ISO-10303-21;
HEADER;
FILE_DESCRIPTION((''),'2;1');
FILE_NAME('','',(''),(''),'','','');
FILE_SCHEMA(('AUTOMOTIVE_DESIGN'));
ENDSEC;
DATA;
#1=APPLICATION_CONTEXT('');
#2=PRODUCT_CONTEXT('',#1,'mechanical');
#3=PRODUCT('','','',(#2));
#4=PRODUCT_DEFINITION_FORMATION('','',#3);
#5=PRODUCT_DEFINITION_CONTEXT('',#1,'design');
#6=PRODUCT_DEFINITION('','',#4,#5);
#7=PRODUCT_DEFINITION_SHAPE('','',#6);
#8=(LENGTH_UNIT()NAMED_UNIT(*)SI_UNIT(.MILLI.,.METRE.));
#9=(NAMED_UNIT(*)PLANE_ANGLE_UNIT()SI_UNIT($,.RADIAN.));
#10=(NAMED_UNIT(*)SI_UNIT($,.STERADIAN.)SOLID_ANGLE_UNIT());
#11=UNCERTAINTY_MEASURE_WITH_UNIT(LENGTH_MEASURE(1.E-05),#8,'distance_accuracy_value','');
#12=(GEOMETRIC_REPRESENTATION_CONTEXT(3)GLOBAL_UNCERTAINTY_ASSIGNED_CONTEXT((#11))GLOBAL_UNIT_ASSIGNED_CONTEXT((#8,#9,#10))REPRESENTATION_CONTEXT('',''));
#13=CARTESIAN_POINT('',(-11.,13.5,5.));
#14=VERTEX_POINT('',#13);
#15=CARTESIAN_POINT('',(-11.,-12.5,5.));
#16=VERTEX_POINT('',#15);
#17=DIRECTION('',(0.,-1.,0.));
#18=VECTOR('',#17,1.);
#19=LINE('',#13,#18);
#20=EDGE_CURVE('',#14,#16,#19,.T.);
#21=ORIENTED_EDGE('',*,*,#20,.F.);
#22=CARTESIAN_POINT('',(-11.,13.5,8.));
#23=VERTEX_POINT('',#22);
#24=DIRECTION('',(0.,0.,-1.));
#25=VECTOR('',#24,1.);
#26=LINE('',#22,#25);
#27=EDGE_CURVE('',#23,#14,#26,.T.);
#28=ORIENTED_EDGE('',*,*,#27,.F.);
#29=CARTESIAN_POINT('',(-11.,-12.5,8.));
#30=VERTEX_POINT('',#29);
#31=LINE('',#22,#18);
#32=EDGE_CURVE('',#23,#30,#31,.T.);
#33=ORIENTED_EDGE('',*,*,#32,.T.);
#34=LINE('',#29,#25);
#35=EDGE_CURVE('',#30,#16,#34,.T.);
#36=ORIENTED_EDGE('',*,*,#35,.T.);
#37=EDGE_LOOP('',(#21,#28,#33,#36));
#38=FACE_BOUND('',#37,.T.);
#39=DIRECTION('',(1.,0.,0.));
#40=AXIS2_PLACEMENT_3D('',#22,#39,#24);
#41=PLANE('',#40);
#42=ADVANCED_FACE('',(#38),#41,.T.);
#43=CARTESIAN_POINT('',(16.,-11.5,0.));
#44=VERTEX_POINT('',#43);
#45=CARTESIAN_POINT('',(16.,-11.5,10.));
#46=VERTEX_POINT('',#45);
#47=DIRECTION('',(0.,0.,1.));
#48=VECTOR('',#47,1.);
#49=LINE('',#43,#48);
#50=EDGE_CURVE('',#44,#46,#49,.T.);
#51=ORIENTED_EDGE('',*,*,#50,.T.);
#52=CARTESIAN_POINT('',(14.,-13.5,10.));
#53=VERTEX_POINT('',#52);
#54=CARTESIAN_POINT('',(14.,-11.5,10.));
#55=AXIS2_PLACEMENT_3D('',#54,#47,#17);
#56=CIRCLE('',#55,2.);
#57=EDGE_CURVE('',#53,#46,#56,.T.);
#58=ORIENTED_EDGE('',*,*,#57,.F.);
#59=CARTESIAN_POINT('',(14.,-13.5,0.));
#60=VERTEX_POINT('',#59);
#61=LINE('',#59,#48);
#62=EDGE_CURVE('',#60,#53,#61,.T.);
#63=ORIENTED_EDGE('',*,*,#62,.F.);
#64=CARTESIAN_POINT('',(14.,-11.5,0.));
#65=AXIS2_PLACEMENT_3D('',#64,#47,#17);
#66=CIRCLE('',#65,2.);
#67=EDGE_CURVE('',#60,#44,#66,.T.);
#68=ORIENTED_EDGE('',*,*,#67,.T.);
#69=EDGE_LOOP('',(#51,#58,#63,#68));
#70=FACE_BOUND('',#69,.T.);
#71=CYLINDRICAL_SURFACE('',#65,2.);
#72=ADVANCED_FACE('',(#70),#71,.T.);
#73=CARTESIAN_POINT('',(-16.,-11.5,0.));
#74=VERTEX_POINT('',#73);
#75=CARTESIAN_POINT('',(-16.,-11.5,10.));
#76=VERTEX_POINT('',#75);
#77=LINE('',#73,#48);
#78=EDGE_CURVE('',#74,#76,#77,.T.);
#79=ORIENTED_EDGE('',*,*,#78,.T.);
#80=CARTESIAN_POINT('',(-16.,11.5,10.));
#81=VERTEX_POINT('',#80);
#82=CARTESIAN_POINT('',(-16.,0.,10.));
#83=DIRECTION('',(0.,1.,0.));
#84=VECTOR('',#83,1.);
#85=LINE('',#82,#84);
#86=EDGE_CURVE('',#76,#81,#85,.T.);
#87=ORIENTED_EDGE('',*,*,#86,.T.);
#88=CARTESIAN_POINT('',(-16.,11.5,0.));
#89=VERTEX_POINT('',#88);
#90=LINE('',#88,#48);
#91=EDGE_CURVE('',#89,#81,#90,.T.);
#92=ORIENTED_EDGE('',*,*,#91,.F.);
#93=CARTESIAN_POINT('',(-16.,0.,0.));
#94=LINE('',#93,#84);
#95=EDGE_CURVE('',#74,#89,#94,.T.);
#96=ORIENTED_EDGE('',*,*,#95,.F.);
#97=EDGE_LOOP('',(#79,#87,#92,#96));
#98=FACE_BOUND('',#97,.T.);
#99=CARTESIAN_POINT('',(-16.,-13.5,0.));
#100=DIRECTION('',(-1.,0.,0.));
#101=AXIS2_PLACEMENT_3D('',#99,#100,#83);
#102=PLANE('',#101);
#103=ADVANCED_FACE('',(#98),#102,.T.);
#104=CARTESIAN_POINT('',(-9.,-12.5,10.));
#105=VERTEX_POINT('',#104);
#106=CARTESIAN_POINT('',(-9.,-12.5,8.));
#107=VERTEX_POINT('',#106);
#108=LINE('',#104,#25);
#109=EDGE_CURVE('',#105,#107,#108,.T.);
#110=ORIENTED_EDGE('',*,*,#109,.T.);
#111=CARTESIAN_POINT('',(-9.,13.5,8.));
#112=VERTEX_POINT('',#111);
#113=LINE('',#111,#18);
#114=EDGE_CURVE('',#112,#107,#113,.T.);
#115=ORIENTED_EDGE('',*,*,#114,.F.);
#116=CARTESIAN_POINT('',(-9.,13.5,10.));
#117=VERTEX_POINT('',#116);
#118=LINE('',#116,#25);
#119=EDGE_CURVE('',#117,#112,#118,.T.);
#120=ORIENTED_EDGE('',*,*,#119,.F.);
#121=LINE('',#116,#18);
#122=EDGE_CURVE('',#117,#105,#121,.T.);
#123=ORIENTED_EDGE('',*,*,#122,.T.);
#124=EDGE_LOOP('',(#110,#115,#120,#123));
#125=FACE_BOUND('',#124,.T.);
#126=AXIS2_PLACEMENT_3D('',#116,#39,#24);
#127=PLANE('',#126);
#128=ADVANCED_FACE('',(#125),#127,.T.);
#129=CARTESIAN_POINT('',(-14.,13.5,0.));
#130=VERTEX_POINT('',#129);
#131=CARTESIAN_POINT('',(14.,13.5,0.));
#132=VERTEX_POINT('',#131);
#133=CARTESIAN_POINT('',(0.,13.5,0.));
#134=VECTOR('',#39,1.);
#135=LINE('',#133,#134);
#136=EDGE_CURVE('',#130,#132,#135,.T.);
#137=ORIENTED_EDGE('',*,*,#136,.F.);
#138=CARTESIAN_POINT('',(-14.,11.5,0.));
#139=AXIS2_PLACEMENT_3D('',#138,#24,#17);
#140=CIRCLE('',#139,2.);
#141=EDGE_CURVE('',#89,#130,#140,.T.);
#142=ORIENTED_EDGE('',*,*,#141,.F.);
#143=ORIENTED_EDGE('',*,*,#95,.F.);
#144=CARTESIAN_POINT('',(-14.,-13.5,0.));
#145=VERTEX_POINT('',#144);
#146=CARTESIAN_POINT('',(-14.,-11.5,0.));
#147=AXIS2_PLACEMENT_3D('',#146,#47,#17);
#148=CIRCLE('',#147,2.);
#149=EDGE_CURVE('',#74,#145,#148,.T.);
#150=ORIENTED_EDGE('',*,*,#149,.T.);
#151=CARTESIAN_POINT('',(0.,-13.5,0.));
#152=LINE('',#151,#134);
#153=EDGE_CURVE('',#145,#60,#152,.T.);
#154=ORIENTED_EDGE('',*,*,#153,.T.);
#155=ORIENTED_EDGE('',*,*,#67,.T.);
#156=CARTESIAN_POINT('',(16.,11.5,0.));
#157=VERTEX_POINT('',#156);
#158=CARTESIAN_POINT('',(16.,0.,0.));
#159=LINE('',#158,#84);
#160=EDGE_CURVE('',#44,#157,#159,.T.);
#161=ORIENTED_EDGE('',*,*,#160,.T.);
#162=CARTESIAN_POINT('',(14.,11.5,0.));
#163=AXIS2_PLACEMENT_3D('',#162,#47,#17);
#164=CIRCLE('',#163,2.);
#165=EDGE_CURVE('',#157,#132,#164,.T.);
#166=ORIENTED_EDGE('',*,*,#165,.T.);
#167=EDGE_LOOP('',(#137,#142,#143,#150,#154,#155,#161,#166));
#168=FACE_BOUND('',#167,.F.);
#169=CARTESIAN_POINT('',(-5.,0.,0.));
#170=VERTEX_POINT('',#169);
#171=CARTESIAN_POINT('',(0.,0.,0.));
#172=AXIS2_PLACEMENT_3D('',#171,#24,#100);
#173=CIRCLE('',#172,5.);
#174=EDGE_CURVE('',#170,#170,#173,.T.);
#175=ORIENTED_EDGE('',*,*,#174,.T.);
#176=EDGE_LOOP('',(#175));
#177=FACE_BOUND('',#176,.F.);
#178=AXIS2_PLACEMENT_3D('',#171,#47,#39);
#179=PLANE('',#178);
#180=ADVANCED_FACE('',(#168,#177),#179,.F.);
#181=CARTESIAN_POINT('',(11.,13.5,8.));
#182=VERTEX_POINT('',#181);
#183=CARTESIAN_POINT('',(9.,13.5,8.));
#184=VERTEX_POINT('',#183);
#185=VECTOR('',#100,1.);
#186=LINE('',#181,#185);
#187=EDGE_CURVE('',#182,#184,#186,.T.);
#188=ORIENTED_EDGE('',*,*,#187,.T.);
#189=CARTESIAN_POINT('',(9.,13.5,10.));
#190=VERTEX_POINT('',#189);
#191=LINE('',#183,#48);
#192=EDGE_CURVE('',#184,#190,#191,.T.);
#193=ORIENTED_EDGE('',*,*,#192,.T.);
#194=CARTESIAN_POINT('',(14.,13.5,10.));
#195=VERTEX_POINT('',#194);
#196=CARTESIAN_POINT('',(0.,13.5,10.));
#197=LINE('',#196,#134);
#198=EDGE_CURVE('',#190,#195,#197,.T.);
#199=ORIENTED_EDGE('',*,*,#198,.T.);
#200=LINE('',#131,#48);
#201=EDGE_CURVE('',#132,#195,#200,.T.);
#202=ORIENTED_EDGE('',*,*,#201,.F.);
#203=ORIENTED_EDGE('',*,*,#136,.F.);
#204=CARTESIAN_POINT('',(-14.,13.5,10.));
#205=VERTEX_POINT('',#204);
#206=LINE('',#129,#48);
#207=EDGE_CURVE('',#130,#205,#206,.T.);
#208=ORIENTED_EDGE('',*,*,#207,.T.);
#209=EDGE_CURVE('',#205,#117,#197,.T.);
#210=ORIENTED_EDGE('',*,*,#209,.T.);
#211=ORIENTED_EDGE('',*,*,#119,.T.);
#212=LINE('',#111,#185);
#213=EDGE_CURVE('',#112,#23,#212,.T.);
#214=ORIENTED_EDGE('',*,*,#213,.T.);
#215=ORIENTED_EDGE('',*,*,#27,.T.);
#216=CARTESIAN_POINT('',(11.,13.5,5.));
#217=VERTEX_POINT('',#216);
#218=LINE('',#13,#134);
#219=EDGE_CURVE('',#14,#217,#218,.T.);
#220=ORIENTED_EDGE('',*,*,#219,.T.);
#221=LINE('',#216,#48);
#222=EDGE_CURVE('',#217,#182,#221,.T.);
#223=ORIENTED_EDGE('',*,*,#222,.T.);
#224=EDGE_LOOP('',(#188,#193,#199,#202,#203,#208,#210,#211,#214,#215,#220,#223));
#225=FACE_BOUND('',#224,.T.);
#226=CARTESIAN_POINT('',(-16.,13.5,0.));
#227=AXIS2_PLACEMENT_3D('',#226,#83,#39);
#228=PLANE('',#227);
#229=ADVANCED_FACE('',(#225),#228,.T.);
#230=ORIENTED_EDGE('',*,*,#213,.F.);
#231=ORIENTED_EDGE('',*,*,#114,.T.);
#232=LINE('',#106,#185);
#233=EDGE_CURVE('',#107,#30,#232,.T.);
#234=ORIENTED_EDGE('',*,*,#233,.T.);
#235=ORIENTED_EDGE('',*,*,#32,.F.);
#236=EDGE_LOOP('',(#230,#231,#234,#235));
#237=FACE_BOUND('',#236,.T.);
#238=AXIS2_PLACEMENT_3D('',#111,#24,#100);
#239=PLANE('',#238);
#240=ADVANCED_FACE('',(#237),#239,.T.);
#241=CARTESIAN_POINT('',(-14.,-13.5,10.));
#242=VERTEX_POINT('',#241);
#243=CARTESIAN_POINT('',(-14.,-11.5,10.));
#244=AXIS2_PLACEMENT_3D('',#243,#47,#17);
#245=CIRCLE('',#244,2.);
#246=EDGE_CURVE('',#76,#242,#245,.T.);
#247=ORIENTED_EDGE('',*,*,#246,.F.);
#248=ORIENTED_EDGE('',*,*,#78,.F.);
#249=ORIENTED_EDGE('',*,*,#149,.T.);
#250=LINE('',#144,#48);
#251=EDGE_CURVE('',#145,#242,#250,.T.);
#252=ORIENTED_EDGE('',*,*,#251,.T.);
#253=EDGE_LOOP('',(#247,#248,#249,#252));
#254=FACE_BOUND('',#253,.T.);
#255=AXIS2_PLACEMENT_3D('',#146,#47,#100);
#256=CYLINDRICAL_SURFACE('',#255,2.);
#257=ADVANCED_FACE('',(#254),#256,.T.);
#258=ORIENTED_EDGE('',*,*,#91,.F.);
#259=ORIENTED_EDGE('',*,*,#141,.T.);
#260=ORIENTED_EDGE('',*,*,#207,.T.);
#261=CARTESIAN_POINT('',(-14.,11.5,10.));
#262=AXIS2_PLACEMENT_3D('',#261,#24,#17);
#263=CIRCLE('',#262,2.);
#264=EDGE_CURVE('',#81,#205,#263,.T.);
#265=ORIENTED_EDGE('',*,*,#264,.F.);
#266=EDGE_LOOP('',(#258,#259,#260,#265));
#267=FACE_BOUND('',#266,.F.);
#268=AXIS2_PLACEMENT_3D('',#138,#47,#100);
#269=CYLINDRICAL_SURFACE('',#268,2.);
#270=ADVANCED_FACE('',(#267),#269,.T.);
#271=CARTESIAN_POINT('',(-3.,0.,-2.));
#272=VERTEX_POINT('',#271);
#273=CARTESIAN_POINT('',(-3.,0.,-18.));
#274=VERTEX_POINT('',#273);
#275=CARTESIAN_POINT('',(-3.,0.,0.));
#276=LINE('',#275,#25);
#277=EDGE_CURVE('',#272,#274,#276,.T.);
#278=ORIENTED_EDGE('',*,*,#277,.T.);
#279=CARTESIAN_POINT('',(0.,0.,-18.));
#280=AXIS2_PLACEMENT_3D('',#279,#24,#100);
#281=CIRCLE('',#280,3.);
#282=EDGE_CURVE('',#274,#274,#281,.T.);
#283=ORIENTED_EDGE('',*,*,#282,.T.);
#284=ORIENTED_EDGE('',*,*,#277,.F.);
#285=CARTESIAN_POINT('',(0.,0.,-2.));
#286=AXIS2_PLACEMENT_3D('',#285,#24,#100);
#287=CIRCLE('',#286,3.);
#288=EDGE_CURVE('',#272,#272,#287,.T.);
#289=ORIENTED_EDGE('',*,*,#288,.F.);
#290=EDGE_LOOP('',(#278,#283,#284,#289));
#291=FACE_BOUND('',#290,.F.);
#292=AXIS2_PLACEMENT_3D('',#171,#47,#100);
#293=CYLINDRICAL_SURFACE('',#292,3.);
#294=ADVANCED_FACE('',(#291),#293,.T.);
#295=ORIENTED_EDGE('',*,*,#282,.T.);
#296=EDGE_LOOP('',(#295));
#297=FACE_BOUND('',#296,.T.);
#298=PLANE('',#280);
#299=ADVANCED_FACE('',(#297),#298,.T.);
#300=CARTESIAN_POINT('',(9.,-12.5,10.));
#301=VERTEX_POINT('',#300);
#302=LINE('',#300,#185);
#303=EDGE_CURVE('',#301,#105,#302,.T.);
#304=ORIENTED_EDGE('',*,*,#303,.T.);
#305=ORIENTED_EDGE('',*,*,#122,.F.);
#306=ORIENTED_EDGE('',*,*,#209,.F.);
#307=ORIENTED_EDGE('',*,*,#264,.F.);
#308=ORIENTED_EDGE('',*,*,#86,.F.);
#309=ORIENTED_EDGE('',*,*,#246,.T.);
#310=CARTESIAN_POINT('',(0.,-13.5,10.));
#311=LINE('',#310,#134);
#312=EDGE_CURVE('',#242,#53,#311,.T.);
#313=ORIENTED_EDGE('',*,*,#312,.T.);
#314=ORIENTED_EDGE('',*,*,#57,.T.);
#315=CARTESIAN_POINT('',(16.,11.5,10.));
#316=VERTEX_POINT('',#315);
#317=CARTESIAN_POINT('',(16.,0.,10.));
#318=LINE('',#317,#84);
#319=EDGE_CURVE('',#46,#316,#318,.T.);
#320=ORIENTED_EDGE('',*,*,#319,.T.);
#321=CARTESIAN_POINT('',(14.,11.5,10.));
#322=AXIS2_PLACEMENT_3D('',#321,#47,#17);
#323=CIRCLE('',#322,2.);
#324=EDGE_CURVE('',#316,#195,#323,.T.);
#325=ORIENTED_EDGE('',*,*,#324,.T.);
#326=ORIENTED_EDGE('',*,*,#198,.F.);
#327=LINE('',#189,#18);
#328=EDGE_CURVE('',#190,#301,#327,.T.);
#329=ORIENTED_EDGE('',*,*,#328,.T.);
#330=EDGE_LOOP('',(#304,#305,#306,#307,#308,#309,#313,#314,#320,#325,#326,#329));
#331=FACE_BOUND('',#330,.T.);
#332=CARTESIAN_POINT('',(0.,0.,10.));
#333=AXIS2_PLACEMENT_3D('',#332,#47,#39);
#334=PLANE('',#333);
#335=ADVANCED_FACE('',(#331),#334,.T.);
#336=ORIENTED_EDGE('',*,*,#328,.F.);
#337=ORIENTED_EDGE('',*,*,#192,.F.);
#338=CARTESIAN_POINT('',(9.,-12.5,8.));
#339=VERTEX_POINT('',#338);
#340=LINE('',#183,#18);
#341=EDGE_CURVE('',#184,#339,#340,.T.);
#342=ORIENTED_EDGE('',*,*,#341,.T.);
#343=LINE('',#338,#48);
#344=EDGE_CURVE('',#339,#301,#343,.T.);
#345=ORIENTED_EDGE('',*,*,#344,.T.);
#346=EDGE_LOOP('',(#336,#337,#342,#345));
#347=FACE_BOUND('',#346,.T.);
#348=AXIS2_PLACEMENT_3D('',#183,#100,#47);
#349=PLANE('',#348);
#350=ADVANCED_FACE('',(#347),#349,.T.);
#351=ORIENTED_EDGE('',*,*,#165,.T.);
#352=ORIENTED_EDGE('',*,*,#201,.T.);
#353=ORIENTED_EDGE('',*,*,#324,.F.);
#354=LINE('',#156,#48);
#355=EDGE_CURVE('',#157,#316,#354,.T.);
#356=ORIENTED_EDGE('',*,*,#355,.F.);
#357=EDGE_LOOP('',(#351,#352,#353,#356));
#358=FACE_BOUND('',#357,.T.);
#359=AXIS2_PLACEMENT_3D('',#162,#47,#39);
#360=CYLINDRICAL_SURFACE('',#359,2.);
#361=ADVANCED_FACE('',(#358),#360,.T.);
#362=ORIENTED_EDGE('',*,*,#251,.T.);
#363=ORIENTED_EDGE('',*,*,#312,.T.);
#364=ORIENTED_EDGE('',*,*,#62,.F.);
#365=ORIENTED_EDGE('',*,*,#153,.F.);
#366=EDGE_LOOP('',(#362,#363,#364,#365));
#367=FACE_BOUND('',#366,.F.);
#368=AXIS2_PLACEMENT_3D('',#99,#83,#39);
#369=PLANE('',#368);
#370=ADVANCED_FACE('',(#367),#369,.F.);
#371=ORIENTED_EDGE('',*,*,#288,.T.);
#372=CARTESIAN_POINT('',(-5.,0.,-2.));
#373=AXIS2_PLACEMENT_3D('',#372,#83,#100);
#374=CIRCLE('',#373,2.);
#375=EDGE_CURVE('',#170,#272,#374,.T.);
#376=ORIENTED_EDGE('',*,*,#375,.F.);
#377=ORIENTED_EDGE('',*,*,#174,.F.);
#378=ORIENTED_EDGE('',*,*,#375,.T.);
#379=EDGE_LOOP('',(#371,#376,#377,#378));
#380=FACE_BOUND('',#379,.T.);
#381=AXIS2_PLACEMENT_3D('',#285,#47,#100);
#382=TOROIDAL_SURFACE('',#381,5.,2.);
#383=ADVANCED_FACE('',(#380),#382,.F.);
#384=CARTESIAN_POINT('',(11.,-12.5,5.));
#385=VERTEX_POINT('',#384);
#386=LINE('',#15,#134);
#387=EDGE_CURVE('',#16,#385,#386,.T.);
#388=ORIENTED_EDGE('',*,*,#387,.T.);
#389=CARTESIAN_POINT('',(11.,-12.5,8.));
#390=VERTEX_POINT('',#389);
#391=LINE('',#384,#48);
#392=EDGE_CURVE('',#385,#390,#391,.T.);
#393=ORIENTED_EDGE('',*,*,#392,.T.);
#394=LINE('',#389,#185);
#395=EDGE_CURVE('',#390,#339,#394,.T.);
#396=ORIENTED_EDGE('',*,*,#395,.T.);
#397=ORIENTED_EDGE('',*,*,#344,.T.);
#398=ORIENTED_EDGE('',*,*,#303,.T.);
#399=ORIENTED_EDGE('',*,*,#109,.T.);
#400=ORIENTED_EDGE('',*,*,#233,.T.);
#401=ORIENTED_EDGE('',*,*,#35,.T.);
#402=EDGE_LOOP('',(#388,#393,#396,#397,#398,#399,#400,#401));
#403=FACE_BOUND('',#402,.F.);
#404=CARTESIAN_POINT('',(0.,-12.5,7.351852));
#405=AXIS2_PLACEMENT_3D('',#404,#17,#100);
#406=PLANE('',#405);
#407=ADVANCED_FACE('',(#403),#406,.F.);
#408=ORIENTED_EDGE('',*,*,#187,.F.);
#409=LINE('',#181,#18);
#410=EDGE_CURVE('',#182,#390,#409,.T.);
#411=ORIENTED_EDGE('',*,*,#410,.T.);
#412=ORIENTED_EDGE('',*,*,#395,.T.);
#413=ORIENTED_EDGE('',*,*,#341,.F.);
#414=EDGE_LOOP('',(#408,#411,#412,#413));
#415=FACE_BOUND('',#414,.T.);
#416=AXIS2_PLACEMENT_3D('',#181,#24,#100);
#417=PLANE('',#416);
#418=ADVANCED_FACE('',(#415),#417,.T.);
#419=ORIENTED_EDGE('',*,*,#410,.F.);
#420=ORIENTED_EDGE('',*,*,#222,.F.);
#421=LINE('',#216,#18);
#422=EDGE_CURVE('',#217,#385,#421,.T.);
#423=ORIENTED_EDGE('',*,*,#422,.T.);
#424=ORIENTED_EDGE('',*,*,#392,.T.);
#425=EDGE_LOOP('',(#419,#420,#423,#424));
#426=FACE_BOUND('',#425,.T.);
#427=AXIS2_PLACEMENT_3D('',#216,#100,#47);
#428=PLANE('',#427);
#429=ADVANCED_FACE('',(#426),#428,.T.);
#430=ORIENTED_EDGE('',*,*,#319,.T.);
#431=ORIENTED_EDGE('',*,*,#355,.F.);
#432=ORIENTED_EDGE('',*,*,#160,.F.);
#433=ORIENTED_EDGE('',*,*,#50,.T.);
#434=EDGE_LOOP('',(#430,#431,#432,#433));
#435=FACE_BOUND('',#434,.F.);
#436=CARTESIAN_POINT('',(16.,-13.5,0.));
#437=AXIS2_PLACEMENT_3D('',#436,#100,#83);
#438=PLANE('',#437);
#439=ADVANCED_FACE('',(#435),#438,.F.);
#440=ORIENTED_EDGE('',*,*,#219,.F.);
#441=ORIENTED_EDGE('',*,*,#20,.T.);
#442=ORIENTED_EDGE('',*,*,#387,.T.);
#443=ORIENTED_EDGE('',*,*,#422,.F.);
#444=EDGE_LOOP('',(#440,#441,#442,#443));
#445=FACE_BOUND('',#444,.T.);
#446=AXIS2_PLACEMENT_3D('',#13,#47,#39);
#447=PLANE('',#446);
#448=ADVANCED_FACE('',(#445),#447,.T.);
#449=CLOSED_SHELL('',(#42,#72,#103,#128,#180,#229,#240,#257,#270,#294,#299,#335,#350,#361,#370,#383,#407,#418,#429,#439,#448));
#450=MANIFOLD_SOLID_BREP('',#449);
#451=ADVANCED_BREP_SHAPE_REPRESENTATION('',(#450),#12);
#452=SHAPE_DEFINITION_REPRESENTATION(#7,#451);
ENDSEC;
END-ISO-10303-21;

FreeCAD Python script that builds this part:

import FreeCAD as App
import Part
import Sketcher

V = App.Vector


def edges_at(feature, points):
    """Names of the edges that pass closest to the given points."""
    edges = feature.Shape.Edges
    near = lambda p: min(range(len(edges)), key=lambda i: edges[i].distToShape(Part.Vertex(*p))[0])
    return sorted({f"Edge{near(p) + 1}" for p in points})

doc = App.newDocument("Part")
body = doc.addObject("PartDesign::Body", "Body")

sketch1 = doc.addObject("Sketcher::SketchObject", "Sketch")
body.addObject(sketch1)
sketch1.AttachmentSupport = (doc.XY_Plane, [""])
sketch1.MapMode = "FlatFace"
sketch1.addGeometry([
    Part.LineSegment(V(-16, 14, 0), V(-16, -14, 0)),
    Part.LineSegment(V(-16, -14, 0), V(16, -14, 0)),
    Part.LineSegment(V(16, -14, 0), V(16, 14, 0)),
    Part.LineSegment(V(16, 14, 0), V(-16, 14, 0)),
], False)
sketch1.addConstraint([
    Sketcher.Constraint("Coincident", 0, 2, 1, 1),
    Sketcher.Constraint("Coincident", 1, 2, 2, 1),
    Sketcher.Constraint("Coincident", 2, 2, 3, 1),
    Sketcher.Constraint("Coincident", 3, 2, 0, 1),
    Sketcher.Constraint("Vertical", 0),
    Sketcher.Constraint("Horizontal", 1),
    Sketcher.Constraint("Vertical", 2),
    Sketcher.Constraint("Horizontal", 3),
    Sketcher.Constraint("Symmetric", 0, 2, 2, 2, -1, 1),
    Sketcher.Constraint("DistanceX", 1, 1, 1, 2, 32.0),
    Sketcher.Constraint("DistanceY", 0, 2, 0, 1, 27.0),
])
pad1 = doc.addObject("PartDesign::Pad", "Pad")
body.addObject(pad1)
pad1.Profile = sketch1
pad1.Length = 10
doc.recompute()

fillet = doc.addObject("PartDesign::Fillet", "Fillet")
body.addObject(fillet)
fillet.Base = (pad1, edges_at(pad1, [
    (-16, -13.5, 5),
    (16, -13.5, 5),
    (16, 13.5, 5),
    (-16, 13.5, 5),
]))
fillet.Radius = 2

sketch2 = doc.addObject("Sketcher::SketchObject", "Sketch001")
body.addObject(sketch2)
sketch2.AttachmentSupport = (doc.XZ_Plane, [""])
sketch2.MapMode = "FlatFace"
sketch2.AttachmentOffset = App.Placement(V(0, 0, -13.5), App.Rotation())
sketch2.addGeometry([
    Part.LineSegment(V(-9, 8, 0), V(-9, 10, 0)),
    Part.LineSegment(V(-9, 10, 0), V(9, 10, 0)),
    Part.LineSegment(V(9, 10, 0), V(9, 8, 0)),
    Part.LineSegment(V(9, 8, 0), V(11, 8, 0)),
    Part.LineSegment(V(11, 8, 0), V(11, 5, 0)),
    Part.LineSegment(V(11, 5, 0), V(-11, 5, 0)),
    Part.LineSegment(V(-11, 5, 0), V(-11, 8, 0)),
    Part.LineSegment(V(-11, 8, 0), V(-9, 8, 0)),
], False)
sketch2.addConstraint([
    Sketcher.Constraint("Coincident", 0, 2, 1, 1),
    Sketcher.Constraint("Coincident", 1, 2, 2, 1),
    Sketcher.Constraint("Coincident", 2, 2, 3, 1),
    Sketcher.Constraint("Coincident", 3, 2, 4, 1),
    Sketcher.Constraint("Coincident", 4, 2, 5, 1),
    Sketcher.Constraint("Coincident", 5, 2, 6, 1),
    Sketcher.Constraint("Coincident", 6, 2, 7, 1),
    Sketcher.Constraint("Coincident", 7, 2, 0, 1),
    Sketcher.Constraint("Vertical", 0),
    Sketcher.Constraint("Horizontal", 1),
    Sketcher.Constraint("Vertical", 2),
    Sketcher.Constraint("Horizontal", 3),
    Sketcher.Constraint("Vertical", 4),
    Sketcher.Constraint("Horizontal", 5),
    Sketcher.Constraint("Vertical", 6),
    Sketcher.Constraint("Horizontal", 7),
    Sketcher.Constraint("Symmetric", 3, 2, 6, 2, -2),
    Sketcher.Constraint("Equal", 3, 7),
    Sketcher.Constraint("Equal", 7, 0),
    Sketcher.Constraint("DistanceX", 1, 1, 1, 2, 18.0),
    Sketcher.Constraint("DistanceX", 3, 1, 3, 2, 2.0),
    Sketcher.Constraint("DistanceY", 4, 2, 4, 1, 3.0),
    Sketcher.Constraint("DistanceY", -1, 1, 0, 2, 10.0),
])
pocket1 = doc.addObject("PartDesign::Pocket", "Pocket")
body.addObject(pocket1)
pocket1.Profile = sketch2
pocket1.Length = 26
pocket1.Reversed = True

sketch3 = doc.addObject("Sketcher::SketchObject", "Sketch002")
body.addObject(sketch3)
sketch3.AttachmentSupport = (doc.XY_Plane, [""])
sketch3.MapMode = "FlatFace"
sketch3.addGeometry(Part.Circle(V(0, 0, 0), V(0, 0, 1), 3), False)
sketch3.addConstraint([
    Sketcher.Constraint("Coincident", 0, 3, -1, 1),
    Sketcher.Constraint("Diameter", 0, 6.0),
])
pad2 = doc.addObject("PartDesign::Pad", "Pad001")
body.addObject(pad2)
pad2.Profile = sketch3
pad2.Length = 18
pad2.Reversed = True
doc.recompute()

fillet2 = doc.addObject("PartDesign::Fillet", "Fillet001")
body.addObject(fillet2)
fillet2.Base = (pad2, edges_at(pad2, [(3, 0, 0)]))
fillet2.Radius = 2

doc.recompute()
